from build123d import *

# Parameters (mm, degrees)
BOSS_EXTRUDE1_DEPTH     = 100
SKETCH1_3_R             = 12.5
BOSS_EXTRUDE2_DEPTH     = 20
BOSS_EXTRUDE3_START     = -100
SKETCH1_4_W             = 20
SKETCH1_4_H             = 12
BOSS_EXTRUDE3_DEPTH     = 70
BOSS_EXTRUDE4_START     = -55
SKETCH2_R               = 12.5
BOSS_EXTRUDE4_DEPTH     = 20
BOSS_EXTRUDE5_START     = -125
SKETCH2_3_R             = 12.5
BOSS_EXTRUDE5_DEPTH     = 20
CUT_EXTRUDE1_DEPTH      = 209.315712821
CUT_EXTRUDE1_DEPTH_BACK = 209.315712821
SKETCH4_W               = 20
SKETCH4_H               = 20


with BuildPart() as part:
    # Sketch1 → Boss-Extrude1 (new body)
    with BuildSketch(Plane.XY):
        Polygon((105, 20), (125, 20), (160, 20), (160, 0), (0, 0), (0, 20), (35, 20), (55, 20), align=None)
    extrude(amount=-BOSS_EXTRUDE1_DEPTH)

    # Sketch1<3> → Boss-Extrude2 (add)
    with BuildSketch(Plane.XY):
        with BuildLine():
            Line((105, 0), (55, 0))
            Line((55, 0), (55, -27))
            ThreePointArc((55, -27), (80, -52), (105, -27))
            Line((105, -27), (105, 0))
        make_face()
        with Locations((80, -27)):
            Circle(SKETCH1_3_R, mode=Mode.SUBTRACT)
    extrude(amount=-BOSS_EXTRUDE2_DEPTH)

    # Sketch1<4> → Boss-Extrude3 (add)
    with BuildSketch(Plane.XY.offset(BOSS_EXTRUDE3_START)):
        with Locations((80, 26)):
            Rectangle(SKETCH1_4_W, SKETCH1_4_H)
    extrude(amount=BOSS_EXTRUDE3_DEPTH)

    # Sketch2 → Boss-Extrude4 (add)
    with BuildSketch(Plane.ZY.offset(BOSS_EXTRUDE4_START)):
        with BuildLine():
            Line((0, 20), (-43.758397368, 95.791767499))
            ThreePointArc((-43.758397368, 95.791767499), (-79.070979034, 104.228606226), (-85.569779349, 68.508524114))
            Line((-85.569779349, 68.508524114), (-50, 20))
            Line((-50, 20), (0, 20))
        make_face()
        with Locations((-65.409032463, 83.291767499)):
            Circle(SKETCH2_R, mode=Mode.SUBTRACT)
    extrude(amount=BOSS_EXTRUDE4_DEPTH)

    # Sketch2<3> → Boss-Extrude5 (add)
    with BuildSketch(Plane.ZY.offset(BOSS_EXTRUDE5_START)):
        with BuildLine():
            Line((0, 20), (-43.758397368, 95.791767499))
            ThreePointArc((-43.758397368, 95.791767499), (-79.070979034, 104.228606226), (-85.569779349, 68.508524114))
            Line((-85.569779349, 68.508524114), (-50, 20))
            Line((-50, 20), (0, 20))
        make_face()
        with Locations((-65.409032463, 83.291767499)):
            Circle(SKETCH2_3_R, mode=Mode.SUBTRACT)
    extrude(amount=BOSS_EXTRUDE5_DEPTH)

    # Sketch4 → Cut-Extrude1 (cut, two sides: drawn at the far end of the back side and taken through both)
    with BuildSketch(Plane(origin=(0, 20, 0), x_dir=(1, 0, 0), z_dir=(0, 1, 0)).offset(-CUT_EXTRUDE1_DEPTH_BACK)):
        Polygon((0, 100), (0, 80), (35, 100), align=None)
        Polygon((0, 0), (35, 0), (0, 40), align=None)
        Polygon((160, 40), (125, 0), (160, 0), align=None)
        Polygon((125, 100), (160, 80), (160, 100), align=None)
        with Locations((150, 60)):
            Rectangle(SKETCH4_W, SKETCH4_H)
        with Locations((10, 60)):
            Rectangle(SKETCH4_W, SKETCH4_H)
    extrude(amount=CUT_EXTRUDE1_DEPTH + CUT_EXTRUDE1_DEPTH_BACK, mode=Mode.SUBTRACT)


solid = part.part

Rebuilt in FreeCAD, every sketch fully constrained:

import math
import FreeCAD as App
import Part
import Sketcher
from FreeCAD import Vector
Q = App.Units.Quantity


def add_polygon(sketch, points):
    """Adds a closed chain of lines whose ends are joined by coincident constraints."""
    first, n = sketch.GeometryCount, len(points)
    for a, b in zip(points, points[1:] + points[:1]):
        sketch.addGeometry(Part.LineSegment(App.Vector(*a, 0), App.Vector(*b, 0)), False)
    for i in range(n):
        sketch.addConstraint(Sketcher.Constraint("Coincident", first + i, 2, first + (i + 1) % n, 1))

doc = App.newDocument("Part")
params = doc.addObject("Spreadsheet::Sheet", "Params")
for row, (alias, value) in enumerate([
    ("sketch1_width", "160 mm"),
    ("sketch1_height", "20 mm"),
    ("pad1_length", "100 mm"),
    ("sketch2_diameter", "25 mm"),
    ("sketch2_radius", "25 mm"),
    ("sketch2_height", "27 mm"),
    ("pad2_length", "20 mm"),
    ("sketch3_width", "20 mm"),
    ("sketch3_height", "12 mm"),
    ("pad3_length", "70 mm"),
    ("sketch4_diameter", "25 mm"),
    ("sketch4_radius", "25 mm"),
    ("sketch4_height", "50 mm"),
    ("pad4_length", "20 mm"),
    ("sketch5_diameter", "25 mm"),
    ("sketch5_radius", "25 mm"),
    ("sketch5_height", "50 mm"),
    ("pad5_length", "20 mm"),
    ("sketch6_width", "35 mm"),
    ("sketch6_width2", "20 mm"),
    ("sketch6_height", "40 mm"),
], start=1):
    params.set(f"A{row}", alias)
    params.set(f"B{row}", "=" + value)
    params.setAlias(f"B{row}", alias)

body = doc.addObject("PartDesign::Body", "Body")

# Sketch on XY plane
sketch1 = body.newObject("Sketcher::SketchObject", "Sketch")
sketch1.AttachmentSupport = (doc.getObject("XY_Plane"), [""])
sketch1.MapMode = "FlatFace"
add_polygon(sketch1, [(160, 20), (0, 20), (0, 0), (160, 0)])  # lines 0-3
sketch1.addConstraint([
    Sketcher.Constraint("Horizontal", 0),
    Sketcher.Constraint("Vertical", 1),
    Sketcher.Constraint("Horizontal", 2),
    Sketcher.Constraint("Vertical", 3),
    Sketcher.Constraint("Coincident", 1, 2, -1, 1),
    Sketcher.Constraint("DistanceX", 0, 2, 0, 1, Q("160 mm")),
    Sketcher.Constraint("DistanceY", 1, 2, 1, 1, Q("20 mm")),
])
sketch1.setExpression("Constraints[9]", "Params.sketch1_width")
sketch1.setExpression("Constraints[10]", "Params.sketch1_height")
pad1 = body.newObject("PartDesign::Pad", "Pad")
pad1.Profile = sketch1
pad1.setExpression("Length", "Params.pad1_length")
pad1.Reversed = True

# Sketch on XY plane
sketch2 = body.newObject("Sketcher::SketchObject", "Sketch001")
sketch2.AttachmentSupport = (doc.getObject("XY_Plane"), [""])
sketch2.MapMode = "FlatFace"
sketch2.addGeometry([
    Part.LineSegment(Vector(105, 0, 0), Vector(55, 0, 0)),  # 0
    Part.LineSegment(Vector(55, 0, 0), Vector(55, -27, 0)),  # 1
    Part.ArcOfCircle(Part.Circle(Vector(80, -27, 0), Vector(0, 0, 1), 25), math.radians(180), math.radians(360)),  # 2
    Part.LineSegment(Vector(105, -27, 0), Vector(105, 0, 0)),  # 3
    Part.Circle(Vector(80, -27, 0), Vector(0, 0, 1), 12),  # 4
], False)
sketch2.addConstraint([
    Sketcher.Constraint("Coincident", 0, 2, 1, 1),
    Sketcher.Constraint("Tangent", 1, 2, 2, 1),
    Sketcher.Constraint("Tangent", 2, 2, 3, 1),
    Sketcher.Constraint("Coincident", 3, 2, 0, 1),
    Sketcher.Constraint("Horizontal", 0),
    Sketcher.Constraint("Vertical", 1),
    Sketcher.Constraint("Vertical", 3),
    Sketcher.Constraint("Coincident", 4, 3, 2, 3),
    Sketcher.Constraint("PointOnObject", 0, 2, -1),
    Sketcher.Constraint("Diameter", 4, Q("25 mm")),
    Sketcher.Constraint("Radius", 2, Q("25 mm")),
    Sketcher.Constraint("DistanceY", 1, 2, 1, 1, Q("27 mm")),
    Sketcher.Constraint("DistanceX", -1, 1, 2, 3, Q("80 mm")),
])
sketch2.setExpression("Constraints[9]", "Params.sketch2_diameter")
sketch2.setExpression("Constraints[10]", "Params.sketch2_radius")
sketch2.setExpression("Constraints[11]", "Params.sketch2_height")
pad2 = body.newObject("PartDesign::Pad", "Pad001")
pad2.Profile = sketch2
pad2.setExpression("Length", "Params.pad2_length")
pad2.Reversed = True

# Sketch on XY plane
sketch3 = body.newObject("Sketcher::SketchObject", "Sketch002")
sketch3.AttachmentSupport = (doc.getObject("XY_Plane"), [""])
sketch3.MapMode = "FlatFace"
sketch3.AttachmentOffset = App.Placement(Vector(0, 0, -100), App.Rotation())
add_polygon(sketch3, [(70, 32), (70, 20), (90, 20), (90, 32)])  # lines 0-3
sketch3.addConstraint([
    Sketcher.Constraint("Vertical", 0),
    Sketcher.Constraint("Horizontal", 1),
    Sketcher.Constraint("Vertical", 2),
    Sketcher.Constraint("Horizontal", 3),
    Sketcher.Constraint("DistanceX", 1, 1, 1, 2, Q("20 mm")),
    Sketcher.Constraint("DistanceY", 0, 2, 0, 1, Q("12 mm")),
    Sketcher.Constraint("DistanceX", -1, 1, 0, 2, Q("70 mm")),
    Sketcher.Constraint("DistanceY", -1, 1, 0, 2, Q("20 mm")),
])
sketch3.setExpression("Constraints[8]", "Params.sketch3_width")
sketch3.setExpression("Constraints[9]", "Params.sketch3_height")
pad3 = body.newObject("PartDesign::Pad", "Pad002")
pad3.Profile = sketch3
pad3.setExpression("Length", "Params.pad3_length")

# Sketch on YZ plane
sketch4 = body.newObject("Sketcher::SketchObject", "Sketch003")
sketch4.AttachmentSupport = (doc.getObject("YZ_Plane"), [""])
sketch4.MapMode = "FlatFace"
sketch4.AttachmentOffset = App.Placement(Vector(0, 0, 55), App.Rotation())
sketch4.addGeometry([
    Part.LineSegment(Vector(20, 0, 0), Vector(96, -44, 0)),  # 0
    Part.ArcOfCircle(Part.Circle(Vector(83, -65, 0), Vector(0, 0, 1), 25), math.radians(-126), math.radians(60)),  # 1
    Part.LineSegment(Vector(69, -86, 0), Vector(20, -50, 0)),  # 2
    Part.LineSegment(Vector(20, -50, 0), Vector(20, 0, 0)),  # 3
    Part.Circle(Vector(83, -65, 0), Vector(0, 0, 1), 12),  # 4
], False)
sketch4.addConstraint([
    Sketcher.Constraint("Tangent", 0, 2, 1, 2),
    Sketcher.Constraint("Tangent", 1, 1, 2, 1),
    Sketcher.Constraint("Coincident", 2, 2, 3, 1),
    Sketcher.Constraint("Coincident", 3, 2, 0, 1),
    Sketcher.Constraint("Vertical", 3),
    Sketcher.Constraint("Coincident", 4, 3, 1, 3),
    Sketcher.Constraint("PointOnObject", 3, 2, -1),
    Sketcher.Constraint("Diameter", 4, Q("25 mm")),
    Sketcher.Constraint("Radius", 1, Q("25 mm")),
    Sketcher.Constraint("DistanceY", 3, 1, 3, 2, Q("50 mm")),
    Sketcher.Constraint("Angle", 0, Q("-30 deg")),
    Sketcher.Constraint("DistanceX", -1, 1, 2, 2, Q("20 mm")),
    Sketcher.Constraint("Distance", 2, Q("60.152191 mm")),
])
sketch4.setExpression("Constraints[7]", "Params.sketch4_diameter")
sketch4.setExpression("Constraints[8]", "Params.sketch4_radius")
sketch4.setExpression("Constraints[9]", "Params.sketch4_height")
pad4 = body.newObject("PartDesign::Pad", "Pad003")
pad4.Profile = sketch4
pad4.setExpression("Length", "Params.pad4_length")
pad4.Reversed = True

# Sketch on YZ plane
sketch5 = body.newObject("Sketcher::SketchObject", "Sketch004")
sketch5.AttachmentSupport = (doc.getObject("YZ_Plane"), [""])
sketch5.MapMode = "FlatFace"
sketch5.AttachmentOffset = App.Placement(Vector(0, 0, 125), App.Rotation())
sketch5.addGeometry([
    Part.LineSegment(Vector(20, 0, 0), Vector(96, -44, 0)),  # 0
    Part.ArcOfCircle(Part.Circle(Vector(83, -65, 0), Vector(0, 0, 1), 25), math.radians(-126), math.radians(60)),  # 1
    Part.LineSegment(Vector(69, -86, 0), Vector(20, -50, 0)),  # 2
    Part.LineSegment(Vector(20, -50, 0), Vector(20, 0, 0)),  # 3
    Part.Circle(Vector(83, -65, 0), Vector(0, 0, 1), 12),  # 4
], False)
sketch5.addConstraint([
    Sketcher.Constraint("Tangent", 0, 2, 1, 2),
    Sketcher.Constraint("Tangent", 1, 1, 2, 1),
    Sketcher.Constraint("Coincident", 2, 2, 3, 1),
    Sketcher.Constraint("Coincident", 3, 2, 0, 1),
    Sketcher.Constraint("Vertical", 3),
    Sketcher.Constraint("Coincident", 4, 3, 1, 3),
    Sketcher.Constraint("PointOnObject", 3, 2, -1),
    Sketcher.Constraint("Diameter", 4, Q("25 mm")),
    Sketcher.Constraint("Radius", 1, Q("25 mm")),
    Sketcher.Constraint("DistanceY", 3, 1, 3, 2, Q("50 mm")),
    Sketcher.Constraint("Angle", 0, Q("-30 deg")),
    Sketcher.Constraint("DistanceX", -1, 1, 2, 2, Q("20 mm")),
    Sketcher.Constraint("Distance", 2, Q("60.152191 mm")),
])
sketch5.setExpression("Constraints[7]", "Params.sketch5_diameter")
sketch5.setExpression("Constraints[8]", "Params.sketch5_radius")
sketch5.setExpression("Constraints[9]", "Params.sketch5_height")
pad5 = body.newObject("PartDesign::Pad", "Pad004")
pad5.Profile = sketch5
pad5.setExpression("Length", "Params.pad5_length")
pad5.Reversed = True

# Sketch on XZ plane
sketch6 = body.newObject("Sketcher::SketchObject", "Sketch005")
sketch6.AttachmentSupport = (doc.getObject("XZ_Plane"), [""])
sketch6.MapMode = "FlatFace"
sketch6.AttachmentOffset = App.Placement(Vector(0, 0, -20), App.Rotation())
add_polygon(sketch6, [(0, -100), (0, -80), (35, -100)])  # lines 0-2
add_polygon(sketch6, [(0, 0), (35, 0), (0, -40)])  # lines 3-5
add_polygon(sketch6, [(160, -40), (125, 0), (160, 0)])  # lines 6-8
add_polygon(sketch6, [(125, -100), (160, -80), (160, -100)])  # lines 9-11
add_polygon(sketch6, [(140, -70), (140, -50), (160, -50), (160, -70)])  # lines 12-15
add_polygon(sketch6, [(0, -70), (0, -50), (20, -50), (20, -70)])  # lines 16-19
sketch6.addConstraint([
    Sketcher.Constraint("Vertical", 0),
    Sketcher.Constraint("Horizontal", 2),
    Sketcher.Constraint("Horizontal", 3),
    Sketcher.Constraint("Vertical", 5),
    Sketcher.Constraint("Horizontal", 7),
    Sketcher.Constraint("Vertical", 8),
    Sketcher.Constraint("Vertical", 10),
    Sketcher.Constraint("Horizontal", 11),
    Sketcher.Constraint("Vertical", 12),
    Sketcher.Constraint("Horizontal", 13),
    Sketcher.Constraint("Vertical", 14),
    Sketcher.Constraint("Horizontal", 15),
    Sketcher.Constraint("Vertical", 16),
    Sketcher.Constraint("Horizontal", 17),
    Sketcher.Constraint("Vertical", 18),
    Sketcher.Constraint("Horizontal", 19),
    Sketcher.Constraint("Coincident", 5, 2, -1, 1),
    Sketcher.Constraint("PointOnObject", 0, 2, -2),
    Sketcher.Constraint("PointOnObject", 6, 2, -1),
    Sketcher.Constraint("PointOnObject", 16, 2, -2),
    Sketcher.Constraint("Horizontal", 4, 2, 8, 2),
    Sketcher.Constraint("Horizontal", 0, 2, 9, 2),
    Sketcher.Constraint("Horizontal", 2, 2, 10, 2),
    Sketcher.Constraint("Horizontal", 13, 2, 16, 2),
    Sketcher.Constraint("Horizontal", 15, 2, 18, 2),
    Sketcher.Constraint("Vertical", 1, 2, 3, 2),
    Sketcher.Constraint("Vertical", 8, 2, 9, 2),
    Sketcher.Constraint("Vertical", 6, 2, 11, 2),
    Sketcher.Constraint("Vertical", 10, 2, 13, 2),
    Sketcher.Constraint("Equal", 3, 7),
    Sketcher.Constraint("Equal", 15, 17),
    Sketcher.Constraint("Equal", 19, 0),
    Sketcher.Constraint("Equal", 10, 12),
    Sketcher.Constraint("DistanceX", 2, 2, 2, 1, Q("35 mm")),
    Sketcher.Constraint("DistanceX", 13, 1, 13, 2, Q("20 mm")),
    Sketcher.Constraint("DistanceY", 5, 1, 5, 2, Q("40 mm")),
    Sketcher.Constraint("DistanceY", 0, 2, -1, 1, Q("80 mm")),
    Sketcher.Constraint("DistanceX", -1, 1, 6, 2, Q("125 mm")),
    Sketcher.Constraint("DistanceY", 12, 2, -1, 1, Q("50 mm")),
])
sketch6.setExpression("Constraints[53]", "Params.sketch6_width")
sketch6.setExpression("Constraints[54]", "Params.sketch6_width2")
sketch6.setExpression("Constraints[55]", "Params.sketch6_height")
pocket1 = body.newObject("PartDesign::Pocket", "Pocket")
pocket1.Profile = sketch6
pocket1.Type = "ThroughAll"
pocket1.Midplane = True

doc.recompute()
